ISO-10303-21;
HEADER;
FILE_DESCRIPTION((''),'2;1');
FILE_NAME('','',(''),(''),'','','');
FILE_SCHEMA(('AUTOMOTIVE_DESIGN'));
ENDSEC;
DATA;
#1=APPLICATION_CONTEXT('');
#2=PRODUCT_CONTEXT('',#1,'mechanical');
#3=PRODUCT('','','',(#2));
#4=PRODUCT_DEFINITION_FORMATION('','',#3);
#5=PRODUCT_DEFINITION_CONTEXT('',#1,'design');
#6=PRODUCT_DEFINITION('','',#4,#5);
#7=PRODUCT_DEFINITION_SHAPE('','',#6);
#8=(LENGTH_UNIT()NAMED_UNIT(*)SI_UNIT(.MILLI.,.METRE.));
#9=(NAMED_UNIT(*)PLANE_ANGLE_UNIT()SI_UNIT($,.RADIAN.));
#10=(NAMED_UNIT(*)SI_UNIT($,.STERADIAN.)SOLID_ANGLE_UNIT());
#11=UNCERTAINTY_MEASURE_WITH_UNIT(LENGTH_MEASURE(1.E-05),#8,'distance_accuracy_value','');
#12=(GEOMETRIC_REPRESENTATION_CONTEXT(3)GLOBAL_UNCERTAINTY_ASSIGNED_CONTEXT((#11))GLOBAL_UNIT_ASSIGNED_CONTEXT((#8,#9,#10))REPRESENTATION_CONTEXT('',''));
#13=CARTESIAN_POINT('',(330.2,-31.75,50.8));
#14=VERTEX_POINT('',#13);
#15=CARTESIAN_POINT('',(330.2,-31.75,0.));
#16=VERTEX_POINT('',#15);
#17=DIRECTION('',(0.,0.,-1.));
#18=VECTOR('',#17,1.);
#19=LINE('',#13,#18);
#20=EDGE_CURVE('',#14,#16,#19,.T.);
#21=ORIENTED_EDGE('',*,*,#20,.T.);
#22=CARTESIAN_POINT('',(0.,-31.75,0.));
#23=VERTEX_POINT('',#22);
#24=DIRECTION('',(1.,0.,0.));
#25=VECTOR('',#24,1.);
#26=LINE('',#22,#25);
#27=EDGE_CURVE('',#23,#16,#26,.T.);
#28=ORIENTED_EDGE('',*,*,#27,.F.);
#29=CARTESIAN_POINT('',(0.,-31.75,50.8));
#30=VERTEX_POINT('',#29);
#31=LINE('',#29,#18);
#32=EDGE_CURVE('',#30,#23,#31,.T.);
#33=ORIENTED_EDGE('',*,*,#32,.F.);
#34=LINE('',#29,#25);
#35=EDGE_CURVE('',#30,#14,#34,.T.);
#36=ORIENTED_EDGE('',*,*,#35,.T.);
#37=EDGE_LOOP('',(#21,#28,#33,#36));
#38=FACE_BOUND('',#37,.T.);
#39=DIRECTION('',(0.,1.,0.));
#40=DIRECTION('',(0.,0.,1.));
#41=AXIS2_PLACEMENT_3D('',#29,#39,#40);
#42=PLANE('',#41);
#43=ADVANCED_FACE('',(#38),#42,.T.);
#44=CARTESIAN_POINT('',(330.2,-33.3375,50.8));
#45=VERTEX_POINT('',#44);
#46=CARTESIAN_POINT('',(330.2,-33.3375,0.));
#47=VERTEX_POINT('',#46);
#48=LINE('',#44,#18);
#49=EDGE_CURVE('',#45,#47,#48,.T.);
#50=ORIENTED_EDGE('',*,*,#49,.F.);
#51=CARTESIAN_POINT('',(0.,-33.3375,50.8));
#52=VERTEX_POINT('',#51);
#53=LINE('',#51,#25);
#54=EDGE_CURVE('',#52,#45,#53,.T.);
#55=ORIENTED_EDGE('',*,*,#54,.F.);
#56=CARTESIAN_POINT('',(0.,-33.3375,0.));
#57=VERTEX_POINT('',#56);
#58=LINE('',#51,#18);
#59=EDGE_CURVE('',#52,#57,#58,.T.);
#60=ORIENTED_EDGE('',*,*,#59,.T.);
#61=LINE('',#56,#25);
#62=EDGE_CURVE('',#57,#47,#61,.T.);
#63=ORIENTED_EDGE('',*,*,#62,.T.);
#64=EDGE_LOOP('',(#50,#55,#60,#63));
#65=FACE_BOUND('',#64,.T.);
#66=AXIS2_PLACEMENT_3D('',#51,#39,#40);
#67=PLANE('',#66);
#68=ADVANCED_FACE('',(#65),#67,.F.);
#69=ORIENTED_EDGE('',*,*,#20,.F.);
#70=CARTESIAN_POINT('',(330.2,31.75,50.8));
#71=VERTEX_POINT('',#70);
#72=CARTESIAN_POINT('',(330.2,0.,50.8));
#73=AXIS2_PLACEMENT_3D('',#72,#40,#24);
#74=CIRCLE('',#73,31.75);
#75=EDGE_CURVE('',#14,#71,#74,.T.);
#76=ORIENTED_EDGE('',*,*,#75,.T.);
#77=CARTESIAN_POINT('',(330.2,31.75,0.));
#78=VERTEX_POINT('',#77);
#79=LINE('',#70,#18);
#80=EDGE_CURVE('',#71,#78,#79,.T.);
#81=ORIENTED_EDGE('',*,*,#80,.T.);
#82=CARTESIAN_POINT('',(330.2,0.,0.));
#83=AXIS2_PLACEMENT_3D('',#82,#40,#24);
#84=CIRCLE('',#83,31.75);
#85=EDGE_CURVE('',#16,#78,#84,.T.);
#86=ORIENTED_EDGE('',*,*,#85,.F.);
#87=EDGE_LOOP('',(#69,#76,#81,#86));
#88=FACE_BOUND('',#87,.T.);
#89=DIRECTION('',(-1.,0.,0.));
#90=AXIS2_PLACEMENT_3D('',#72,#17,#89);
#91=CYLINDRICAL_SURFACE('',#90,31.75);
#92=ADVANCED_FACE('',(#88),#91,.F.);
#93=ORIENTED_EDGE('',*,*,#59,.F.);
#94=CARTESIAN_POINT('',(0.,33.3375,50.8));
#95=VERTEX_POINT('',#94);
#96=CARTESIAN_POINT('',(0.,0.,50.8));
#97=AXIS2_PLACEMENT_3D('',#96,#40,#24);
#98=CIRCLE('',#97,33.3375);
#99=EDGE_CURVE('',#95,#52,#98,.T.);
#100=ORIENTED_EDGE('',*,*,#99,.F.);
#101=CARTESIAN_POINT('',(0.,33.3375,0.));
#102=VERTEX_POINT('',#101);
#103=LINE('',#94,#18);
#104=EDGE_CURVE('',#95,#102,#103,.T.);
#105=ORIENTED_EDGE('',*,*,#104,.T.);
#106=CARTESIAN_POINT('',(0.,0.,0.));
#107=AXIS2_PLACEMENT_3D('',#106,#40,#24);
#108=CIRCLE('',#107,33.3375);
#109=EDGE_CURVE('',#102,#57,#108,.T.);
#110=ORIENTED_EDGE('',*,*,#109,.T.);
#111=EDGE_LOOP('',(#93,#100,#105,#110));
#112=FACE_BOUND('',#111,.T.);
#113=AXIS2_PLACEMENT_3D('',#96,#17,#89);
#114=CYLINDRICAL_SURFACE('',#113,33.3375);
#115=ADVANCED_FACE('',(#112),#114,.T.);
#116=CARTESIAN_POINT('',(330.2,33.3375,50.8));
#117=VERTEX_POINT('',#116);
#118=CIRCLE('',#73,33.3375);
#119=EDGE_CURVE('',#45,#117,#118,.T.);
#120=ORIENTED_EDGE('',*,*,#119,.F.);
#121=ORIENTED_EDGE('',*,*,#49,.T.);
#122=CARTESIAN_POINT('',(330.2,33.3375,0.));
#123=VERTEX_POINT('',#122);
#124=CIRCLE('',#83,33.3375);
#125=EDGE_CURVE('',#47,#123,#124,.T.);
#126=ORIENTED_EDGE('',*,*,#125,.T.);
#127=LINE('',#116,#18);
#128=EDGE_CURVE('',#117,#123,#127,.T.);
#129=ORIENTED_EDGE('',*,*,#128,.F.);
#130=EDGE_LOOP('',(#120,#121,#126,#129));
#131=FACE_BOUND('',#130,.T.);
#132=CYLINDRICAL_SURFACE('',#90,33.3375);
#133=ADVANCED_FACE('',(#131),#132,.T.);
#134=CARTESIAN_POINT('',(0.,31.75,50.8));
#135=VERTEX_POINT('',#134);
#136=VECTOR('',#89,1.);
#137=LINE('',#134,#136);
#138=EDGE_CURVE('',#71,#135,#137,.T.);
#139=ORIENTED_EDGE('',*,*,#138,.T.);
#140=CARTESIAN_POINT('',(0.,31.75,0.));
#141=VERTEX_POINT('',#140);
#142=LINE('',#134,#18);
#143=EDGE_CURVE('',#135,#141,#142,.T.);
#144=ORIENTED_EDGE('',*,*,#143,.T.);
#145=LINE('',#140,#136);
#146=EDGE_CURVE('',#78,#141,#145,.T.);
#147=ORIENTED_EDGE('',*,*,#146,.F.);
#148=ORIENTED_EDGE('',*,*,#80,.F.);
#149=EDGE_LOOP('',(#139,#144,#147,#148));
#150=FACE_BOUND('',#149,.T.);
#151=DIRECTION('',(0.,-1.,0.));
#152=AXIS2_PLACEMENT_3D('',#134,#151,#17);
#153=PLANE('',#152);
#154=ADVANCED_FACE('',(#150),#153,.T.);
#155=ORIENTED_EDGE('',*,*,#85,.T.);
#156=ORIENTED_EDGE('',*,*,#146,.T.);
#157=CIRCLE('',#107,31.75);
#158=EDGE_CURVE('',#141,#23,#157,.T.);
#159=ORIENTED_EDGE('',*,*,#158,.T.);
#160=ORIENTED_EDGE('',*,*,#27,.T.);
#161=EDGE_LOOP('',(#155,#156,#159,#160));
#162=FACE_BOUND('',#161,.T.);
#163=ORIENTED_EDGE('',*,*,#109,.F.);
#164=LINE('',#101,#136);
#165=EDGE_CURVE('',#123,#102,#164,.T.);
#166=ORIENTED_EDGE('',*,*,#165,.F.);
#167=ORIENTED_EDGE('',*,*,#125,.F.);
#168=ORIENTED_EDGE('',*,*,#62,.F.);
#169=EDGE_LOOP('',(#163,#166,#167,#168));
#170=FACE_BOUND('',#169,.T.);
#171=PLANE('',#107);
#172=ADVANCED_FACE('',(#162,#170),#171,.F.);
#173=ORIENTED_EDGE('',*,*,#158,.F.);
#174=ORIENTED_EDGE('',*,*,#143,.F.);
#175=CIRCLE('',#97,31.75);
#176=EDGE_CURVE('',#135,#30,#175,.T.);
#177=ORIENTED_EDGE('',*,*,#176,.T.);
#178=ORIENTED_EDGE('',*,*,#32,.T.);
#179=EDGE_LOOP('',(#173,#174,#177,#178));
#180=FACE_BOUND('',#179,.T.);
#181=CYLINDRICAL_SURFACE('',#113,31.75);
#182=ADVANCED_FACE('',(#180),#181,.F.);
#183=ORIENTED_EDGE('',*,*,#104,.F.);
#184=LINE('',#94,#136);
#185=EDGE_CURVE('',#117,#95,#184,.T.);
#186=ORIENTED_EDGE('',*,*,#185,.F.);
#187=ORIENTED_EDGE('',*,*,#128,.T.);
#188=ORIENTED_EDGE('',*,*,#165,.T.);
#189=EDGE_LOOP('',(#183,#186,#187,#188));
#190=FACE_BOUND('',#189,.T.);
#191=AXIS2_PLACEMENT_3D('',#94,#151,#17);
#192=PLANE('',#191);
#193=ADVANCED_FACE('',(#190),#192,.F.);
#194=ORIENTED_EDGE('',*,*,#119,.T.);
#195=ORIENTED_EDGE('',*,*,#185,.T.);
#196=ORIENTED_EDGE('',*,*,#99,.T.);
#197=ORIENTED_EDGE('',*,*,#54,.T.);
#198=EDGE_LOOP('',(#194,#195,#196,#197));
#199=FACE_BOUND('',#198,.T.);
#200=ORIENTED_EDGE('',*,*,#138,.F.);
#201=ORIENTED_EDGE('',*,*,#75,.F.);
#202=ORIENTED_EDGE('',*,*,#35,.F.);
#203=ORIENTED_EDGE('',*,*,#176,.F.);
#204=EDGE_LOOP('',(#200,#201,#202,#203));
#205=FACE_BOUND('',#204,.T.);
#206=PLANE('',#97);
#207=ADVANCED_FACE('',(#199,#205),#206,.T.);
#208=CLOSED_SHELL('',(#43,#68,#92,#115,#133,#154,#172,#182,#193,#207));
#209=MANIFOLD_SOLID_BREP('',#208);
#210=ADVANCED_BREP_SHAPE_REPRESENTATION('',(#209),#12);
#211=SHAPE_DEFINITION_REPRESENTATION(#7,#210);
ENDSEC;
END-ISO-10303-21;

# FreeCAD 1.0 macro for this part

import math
import FreeCAD as App
import Part
import Sketcher
from FreeCAD import Vector
Q = App.Units.Quantity

doc = App.newDocument("Part")
params = doc.addObject("Spreadsheet::Sheet", "Params")
for row, (alias, value) in enumerate([
    ("sketch1_width", "13 in"),
    ("sketch1_radius", "1.25 in"),
    ("sketch1_radius2", "1.3125 in"),
    ("pad1_length", "2 in"),
], start=1):
    params.set(f"A{row}", alias)
    params.set(f"B{row}", "=" + value)
    params.setAlias(f"B{row}", alias)

body = doc.addObject("PartDesign::Body", "Body")

# Sketch on XY plane
sketch1 = body.newObject("Sketcher::SketchObject", "Sketch")
sketch1.AttachmentSupport = (doc.getObject("XY_Plane"), [""])
sketch1.MapMode = "FlatFace"
sketch1.addGeometry([
    Part.LineSegment(Vector(330.2, 33.3375, 0), Vector(0, 33.3375, 0)),  # 0
    Part.ArcOfCircle(Part.Circle(Vector(0, 0, 0), Vector(0, 0, 1), 33.3375), math.radians(90), math.radians(270)),  # 1
    Part.LineSegment(Vector(0, -33.3375, 0), Vector(330.2, -33.3375, 0)),  # 2
    Part.ArcOfCircle(Part.Circle(Vector(330.2, 0, 0), Vector(0, 0, 1), 33.3375), math.radians(-90), math.radians(90)),  # 3
    Part.LineSegment(Vector(0, 31.75, 0), Vector(330.2, 31.75, 0)),  # 4
    Part.ArcOfCircle(Part.Circle(Vector(330.2, 0, 0), Vector(0, 0, 1), 31.75), math.radians(-90), math.radians(90)),  # 5
    Part.LineSegment(Vector(330.2, -31.75, 0), Vector(0, -31.75, 0)),  # 6
    Part.ArcOfCircle(Part.Circle(Vector(0, 0, 0), Vector(0, 0, 1), 31.75), math.radians(90), math.radians(270)),  # 7
], False)
sketch1.addConstraint([
    Sketcher.Constraint("Tangent", 0, 2, 1, 1),
    Sketcher.Constraint("Tangent", 1, 2, 2, 1),
    Sketcher.Constraint("Tangent", 2, 2, 3, 1),
    Sketcher.Constraint("Tangent", 3, 2, 0, 1),
    Sketcher.Constraint("Tangent", 4, 2, 5, 2),
    Sketcher.Constraint("Tangent", 5, 1, 6, 1),
    Sketcher.Constraint("Tangent", 6, 2, 7, 2),
    Sketcher.Constraint("Tangent", 7, 1, 4, 1),
    Sketcher.Constraint("Horizontal", 0),
    Sketcher.Constraint("Horizontal", 2),
    Sketcher.Constraint("Horizontal", 4),
    Sketcher.Constraint("Horizontal", 6),
    Sketcher.Constraint("Coincident", 1, 3, -1, 1),
    Sketcher.Constraint("Coincident", 7, 3, -1, 1),
    Sketcher.Constraint("Vertical", 5, 3, 2, 2),
    Sketcher.Constraint("DistanceX", 0, 2, 0, 1, Q("13 in")),
    Sketcher.Constraint("Radius", 5, Q("1.25 in")),
    Sketcher.Constraint("Radius", 1, Q("1.3125 in")),
])
sketch1.setExpression("Constraints[15]", "Params.sketch1_width")
sketch1.setExpression("Constraints[16]", "Params.sketch1_radius")
sketch1.setExpression("Constraints[17]", "Params.sketch1_radius2")
pad1 = body.newObject("PartDesign::Pad", "Pad")
pad1.Profile = sketch1
pad1.setExpression("Length", "Params.pad1_length")

doc.recompute()
